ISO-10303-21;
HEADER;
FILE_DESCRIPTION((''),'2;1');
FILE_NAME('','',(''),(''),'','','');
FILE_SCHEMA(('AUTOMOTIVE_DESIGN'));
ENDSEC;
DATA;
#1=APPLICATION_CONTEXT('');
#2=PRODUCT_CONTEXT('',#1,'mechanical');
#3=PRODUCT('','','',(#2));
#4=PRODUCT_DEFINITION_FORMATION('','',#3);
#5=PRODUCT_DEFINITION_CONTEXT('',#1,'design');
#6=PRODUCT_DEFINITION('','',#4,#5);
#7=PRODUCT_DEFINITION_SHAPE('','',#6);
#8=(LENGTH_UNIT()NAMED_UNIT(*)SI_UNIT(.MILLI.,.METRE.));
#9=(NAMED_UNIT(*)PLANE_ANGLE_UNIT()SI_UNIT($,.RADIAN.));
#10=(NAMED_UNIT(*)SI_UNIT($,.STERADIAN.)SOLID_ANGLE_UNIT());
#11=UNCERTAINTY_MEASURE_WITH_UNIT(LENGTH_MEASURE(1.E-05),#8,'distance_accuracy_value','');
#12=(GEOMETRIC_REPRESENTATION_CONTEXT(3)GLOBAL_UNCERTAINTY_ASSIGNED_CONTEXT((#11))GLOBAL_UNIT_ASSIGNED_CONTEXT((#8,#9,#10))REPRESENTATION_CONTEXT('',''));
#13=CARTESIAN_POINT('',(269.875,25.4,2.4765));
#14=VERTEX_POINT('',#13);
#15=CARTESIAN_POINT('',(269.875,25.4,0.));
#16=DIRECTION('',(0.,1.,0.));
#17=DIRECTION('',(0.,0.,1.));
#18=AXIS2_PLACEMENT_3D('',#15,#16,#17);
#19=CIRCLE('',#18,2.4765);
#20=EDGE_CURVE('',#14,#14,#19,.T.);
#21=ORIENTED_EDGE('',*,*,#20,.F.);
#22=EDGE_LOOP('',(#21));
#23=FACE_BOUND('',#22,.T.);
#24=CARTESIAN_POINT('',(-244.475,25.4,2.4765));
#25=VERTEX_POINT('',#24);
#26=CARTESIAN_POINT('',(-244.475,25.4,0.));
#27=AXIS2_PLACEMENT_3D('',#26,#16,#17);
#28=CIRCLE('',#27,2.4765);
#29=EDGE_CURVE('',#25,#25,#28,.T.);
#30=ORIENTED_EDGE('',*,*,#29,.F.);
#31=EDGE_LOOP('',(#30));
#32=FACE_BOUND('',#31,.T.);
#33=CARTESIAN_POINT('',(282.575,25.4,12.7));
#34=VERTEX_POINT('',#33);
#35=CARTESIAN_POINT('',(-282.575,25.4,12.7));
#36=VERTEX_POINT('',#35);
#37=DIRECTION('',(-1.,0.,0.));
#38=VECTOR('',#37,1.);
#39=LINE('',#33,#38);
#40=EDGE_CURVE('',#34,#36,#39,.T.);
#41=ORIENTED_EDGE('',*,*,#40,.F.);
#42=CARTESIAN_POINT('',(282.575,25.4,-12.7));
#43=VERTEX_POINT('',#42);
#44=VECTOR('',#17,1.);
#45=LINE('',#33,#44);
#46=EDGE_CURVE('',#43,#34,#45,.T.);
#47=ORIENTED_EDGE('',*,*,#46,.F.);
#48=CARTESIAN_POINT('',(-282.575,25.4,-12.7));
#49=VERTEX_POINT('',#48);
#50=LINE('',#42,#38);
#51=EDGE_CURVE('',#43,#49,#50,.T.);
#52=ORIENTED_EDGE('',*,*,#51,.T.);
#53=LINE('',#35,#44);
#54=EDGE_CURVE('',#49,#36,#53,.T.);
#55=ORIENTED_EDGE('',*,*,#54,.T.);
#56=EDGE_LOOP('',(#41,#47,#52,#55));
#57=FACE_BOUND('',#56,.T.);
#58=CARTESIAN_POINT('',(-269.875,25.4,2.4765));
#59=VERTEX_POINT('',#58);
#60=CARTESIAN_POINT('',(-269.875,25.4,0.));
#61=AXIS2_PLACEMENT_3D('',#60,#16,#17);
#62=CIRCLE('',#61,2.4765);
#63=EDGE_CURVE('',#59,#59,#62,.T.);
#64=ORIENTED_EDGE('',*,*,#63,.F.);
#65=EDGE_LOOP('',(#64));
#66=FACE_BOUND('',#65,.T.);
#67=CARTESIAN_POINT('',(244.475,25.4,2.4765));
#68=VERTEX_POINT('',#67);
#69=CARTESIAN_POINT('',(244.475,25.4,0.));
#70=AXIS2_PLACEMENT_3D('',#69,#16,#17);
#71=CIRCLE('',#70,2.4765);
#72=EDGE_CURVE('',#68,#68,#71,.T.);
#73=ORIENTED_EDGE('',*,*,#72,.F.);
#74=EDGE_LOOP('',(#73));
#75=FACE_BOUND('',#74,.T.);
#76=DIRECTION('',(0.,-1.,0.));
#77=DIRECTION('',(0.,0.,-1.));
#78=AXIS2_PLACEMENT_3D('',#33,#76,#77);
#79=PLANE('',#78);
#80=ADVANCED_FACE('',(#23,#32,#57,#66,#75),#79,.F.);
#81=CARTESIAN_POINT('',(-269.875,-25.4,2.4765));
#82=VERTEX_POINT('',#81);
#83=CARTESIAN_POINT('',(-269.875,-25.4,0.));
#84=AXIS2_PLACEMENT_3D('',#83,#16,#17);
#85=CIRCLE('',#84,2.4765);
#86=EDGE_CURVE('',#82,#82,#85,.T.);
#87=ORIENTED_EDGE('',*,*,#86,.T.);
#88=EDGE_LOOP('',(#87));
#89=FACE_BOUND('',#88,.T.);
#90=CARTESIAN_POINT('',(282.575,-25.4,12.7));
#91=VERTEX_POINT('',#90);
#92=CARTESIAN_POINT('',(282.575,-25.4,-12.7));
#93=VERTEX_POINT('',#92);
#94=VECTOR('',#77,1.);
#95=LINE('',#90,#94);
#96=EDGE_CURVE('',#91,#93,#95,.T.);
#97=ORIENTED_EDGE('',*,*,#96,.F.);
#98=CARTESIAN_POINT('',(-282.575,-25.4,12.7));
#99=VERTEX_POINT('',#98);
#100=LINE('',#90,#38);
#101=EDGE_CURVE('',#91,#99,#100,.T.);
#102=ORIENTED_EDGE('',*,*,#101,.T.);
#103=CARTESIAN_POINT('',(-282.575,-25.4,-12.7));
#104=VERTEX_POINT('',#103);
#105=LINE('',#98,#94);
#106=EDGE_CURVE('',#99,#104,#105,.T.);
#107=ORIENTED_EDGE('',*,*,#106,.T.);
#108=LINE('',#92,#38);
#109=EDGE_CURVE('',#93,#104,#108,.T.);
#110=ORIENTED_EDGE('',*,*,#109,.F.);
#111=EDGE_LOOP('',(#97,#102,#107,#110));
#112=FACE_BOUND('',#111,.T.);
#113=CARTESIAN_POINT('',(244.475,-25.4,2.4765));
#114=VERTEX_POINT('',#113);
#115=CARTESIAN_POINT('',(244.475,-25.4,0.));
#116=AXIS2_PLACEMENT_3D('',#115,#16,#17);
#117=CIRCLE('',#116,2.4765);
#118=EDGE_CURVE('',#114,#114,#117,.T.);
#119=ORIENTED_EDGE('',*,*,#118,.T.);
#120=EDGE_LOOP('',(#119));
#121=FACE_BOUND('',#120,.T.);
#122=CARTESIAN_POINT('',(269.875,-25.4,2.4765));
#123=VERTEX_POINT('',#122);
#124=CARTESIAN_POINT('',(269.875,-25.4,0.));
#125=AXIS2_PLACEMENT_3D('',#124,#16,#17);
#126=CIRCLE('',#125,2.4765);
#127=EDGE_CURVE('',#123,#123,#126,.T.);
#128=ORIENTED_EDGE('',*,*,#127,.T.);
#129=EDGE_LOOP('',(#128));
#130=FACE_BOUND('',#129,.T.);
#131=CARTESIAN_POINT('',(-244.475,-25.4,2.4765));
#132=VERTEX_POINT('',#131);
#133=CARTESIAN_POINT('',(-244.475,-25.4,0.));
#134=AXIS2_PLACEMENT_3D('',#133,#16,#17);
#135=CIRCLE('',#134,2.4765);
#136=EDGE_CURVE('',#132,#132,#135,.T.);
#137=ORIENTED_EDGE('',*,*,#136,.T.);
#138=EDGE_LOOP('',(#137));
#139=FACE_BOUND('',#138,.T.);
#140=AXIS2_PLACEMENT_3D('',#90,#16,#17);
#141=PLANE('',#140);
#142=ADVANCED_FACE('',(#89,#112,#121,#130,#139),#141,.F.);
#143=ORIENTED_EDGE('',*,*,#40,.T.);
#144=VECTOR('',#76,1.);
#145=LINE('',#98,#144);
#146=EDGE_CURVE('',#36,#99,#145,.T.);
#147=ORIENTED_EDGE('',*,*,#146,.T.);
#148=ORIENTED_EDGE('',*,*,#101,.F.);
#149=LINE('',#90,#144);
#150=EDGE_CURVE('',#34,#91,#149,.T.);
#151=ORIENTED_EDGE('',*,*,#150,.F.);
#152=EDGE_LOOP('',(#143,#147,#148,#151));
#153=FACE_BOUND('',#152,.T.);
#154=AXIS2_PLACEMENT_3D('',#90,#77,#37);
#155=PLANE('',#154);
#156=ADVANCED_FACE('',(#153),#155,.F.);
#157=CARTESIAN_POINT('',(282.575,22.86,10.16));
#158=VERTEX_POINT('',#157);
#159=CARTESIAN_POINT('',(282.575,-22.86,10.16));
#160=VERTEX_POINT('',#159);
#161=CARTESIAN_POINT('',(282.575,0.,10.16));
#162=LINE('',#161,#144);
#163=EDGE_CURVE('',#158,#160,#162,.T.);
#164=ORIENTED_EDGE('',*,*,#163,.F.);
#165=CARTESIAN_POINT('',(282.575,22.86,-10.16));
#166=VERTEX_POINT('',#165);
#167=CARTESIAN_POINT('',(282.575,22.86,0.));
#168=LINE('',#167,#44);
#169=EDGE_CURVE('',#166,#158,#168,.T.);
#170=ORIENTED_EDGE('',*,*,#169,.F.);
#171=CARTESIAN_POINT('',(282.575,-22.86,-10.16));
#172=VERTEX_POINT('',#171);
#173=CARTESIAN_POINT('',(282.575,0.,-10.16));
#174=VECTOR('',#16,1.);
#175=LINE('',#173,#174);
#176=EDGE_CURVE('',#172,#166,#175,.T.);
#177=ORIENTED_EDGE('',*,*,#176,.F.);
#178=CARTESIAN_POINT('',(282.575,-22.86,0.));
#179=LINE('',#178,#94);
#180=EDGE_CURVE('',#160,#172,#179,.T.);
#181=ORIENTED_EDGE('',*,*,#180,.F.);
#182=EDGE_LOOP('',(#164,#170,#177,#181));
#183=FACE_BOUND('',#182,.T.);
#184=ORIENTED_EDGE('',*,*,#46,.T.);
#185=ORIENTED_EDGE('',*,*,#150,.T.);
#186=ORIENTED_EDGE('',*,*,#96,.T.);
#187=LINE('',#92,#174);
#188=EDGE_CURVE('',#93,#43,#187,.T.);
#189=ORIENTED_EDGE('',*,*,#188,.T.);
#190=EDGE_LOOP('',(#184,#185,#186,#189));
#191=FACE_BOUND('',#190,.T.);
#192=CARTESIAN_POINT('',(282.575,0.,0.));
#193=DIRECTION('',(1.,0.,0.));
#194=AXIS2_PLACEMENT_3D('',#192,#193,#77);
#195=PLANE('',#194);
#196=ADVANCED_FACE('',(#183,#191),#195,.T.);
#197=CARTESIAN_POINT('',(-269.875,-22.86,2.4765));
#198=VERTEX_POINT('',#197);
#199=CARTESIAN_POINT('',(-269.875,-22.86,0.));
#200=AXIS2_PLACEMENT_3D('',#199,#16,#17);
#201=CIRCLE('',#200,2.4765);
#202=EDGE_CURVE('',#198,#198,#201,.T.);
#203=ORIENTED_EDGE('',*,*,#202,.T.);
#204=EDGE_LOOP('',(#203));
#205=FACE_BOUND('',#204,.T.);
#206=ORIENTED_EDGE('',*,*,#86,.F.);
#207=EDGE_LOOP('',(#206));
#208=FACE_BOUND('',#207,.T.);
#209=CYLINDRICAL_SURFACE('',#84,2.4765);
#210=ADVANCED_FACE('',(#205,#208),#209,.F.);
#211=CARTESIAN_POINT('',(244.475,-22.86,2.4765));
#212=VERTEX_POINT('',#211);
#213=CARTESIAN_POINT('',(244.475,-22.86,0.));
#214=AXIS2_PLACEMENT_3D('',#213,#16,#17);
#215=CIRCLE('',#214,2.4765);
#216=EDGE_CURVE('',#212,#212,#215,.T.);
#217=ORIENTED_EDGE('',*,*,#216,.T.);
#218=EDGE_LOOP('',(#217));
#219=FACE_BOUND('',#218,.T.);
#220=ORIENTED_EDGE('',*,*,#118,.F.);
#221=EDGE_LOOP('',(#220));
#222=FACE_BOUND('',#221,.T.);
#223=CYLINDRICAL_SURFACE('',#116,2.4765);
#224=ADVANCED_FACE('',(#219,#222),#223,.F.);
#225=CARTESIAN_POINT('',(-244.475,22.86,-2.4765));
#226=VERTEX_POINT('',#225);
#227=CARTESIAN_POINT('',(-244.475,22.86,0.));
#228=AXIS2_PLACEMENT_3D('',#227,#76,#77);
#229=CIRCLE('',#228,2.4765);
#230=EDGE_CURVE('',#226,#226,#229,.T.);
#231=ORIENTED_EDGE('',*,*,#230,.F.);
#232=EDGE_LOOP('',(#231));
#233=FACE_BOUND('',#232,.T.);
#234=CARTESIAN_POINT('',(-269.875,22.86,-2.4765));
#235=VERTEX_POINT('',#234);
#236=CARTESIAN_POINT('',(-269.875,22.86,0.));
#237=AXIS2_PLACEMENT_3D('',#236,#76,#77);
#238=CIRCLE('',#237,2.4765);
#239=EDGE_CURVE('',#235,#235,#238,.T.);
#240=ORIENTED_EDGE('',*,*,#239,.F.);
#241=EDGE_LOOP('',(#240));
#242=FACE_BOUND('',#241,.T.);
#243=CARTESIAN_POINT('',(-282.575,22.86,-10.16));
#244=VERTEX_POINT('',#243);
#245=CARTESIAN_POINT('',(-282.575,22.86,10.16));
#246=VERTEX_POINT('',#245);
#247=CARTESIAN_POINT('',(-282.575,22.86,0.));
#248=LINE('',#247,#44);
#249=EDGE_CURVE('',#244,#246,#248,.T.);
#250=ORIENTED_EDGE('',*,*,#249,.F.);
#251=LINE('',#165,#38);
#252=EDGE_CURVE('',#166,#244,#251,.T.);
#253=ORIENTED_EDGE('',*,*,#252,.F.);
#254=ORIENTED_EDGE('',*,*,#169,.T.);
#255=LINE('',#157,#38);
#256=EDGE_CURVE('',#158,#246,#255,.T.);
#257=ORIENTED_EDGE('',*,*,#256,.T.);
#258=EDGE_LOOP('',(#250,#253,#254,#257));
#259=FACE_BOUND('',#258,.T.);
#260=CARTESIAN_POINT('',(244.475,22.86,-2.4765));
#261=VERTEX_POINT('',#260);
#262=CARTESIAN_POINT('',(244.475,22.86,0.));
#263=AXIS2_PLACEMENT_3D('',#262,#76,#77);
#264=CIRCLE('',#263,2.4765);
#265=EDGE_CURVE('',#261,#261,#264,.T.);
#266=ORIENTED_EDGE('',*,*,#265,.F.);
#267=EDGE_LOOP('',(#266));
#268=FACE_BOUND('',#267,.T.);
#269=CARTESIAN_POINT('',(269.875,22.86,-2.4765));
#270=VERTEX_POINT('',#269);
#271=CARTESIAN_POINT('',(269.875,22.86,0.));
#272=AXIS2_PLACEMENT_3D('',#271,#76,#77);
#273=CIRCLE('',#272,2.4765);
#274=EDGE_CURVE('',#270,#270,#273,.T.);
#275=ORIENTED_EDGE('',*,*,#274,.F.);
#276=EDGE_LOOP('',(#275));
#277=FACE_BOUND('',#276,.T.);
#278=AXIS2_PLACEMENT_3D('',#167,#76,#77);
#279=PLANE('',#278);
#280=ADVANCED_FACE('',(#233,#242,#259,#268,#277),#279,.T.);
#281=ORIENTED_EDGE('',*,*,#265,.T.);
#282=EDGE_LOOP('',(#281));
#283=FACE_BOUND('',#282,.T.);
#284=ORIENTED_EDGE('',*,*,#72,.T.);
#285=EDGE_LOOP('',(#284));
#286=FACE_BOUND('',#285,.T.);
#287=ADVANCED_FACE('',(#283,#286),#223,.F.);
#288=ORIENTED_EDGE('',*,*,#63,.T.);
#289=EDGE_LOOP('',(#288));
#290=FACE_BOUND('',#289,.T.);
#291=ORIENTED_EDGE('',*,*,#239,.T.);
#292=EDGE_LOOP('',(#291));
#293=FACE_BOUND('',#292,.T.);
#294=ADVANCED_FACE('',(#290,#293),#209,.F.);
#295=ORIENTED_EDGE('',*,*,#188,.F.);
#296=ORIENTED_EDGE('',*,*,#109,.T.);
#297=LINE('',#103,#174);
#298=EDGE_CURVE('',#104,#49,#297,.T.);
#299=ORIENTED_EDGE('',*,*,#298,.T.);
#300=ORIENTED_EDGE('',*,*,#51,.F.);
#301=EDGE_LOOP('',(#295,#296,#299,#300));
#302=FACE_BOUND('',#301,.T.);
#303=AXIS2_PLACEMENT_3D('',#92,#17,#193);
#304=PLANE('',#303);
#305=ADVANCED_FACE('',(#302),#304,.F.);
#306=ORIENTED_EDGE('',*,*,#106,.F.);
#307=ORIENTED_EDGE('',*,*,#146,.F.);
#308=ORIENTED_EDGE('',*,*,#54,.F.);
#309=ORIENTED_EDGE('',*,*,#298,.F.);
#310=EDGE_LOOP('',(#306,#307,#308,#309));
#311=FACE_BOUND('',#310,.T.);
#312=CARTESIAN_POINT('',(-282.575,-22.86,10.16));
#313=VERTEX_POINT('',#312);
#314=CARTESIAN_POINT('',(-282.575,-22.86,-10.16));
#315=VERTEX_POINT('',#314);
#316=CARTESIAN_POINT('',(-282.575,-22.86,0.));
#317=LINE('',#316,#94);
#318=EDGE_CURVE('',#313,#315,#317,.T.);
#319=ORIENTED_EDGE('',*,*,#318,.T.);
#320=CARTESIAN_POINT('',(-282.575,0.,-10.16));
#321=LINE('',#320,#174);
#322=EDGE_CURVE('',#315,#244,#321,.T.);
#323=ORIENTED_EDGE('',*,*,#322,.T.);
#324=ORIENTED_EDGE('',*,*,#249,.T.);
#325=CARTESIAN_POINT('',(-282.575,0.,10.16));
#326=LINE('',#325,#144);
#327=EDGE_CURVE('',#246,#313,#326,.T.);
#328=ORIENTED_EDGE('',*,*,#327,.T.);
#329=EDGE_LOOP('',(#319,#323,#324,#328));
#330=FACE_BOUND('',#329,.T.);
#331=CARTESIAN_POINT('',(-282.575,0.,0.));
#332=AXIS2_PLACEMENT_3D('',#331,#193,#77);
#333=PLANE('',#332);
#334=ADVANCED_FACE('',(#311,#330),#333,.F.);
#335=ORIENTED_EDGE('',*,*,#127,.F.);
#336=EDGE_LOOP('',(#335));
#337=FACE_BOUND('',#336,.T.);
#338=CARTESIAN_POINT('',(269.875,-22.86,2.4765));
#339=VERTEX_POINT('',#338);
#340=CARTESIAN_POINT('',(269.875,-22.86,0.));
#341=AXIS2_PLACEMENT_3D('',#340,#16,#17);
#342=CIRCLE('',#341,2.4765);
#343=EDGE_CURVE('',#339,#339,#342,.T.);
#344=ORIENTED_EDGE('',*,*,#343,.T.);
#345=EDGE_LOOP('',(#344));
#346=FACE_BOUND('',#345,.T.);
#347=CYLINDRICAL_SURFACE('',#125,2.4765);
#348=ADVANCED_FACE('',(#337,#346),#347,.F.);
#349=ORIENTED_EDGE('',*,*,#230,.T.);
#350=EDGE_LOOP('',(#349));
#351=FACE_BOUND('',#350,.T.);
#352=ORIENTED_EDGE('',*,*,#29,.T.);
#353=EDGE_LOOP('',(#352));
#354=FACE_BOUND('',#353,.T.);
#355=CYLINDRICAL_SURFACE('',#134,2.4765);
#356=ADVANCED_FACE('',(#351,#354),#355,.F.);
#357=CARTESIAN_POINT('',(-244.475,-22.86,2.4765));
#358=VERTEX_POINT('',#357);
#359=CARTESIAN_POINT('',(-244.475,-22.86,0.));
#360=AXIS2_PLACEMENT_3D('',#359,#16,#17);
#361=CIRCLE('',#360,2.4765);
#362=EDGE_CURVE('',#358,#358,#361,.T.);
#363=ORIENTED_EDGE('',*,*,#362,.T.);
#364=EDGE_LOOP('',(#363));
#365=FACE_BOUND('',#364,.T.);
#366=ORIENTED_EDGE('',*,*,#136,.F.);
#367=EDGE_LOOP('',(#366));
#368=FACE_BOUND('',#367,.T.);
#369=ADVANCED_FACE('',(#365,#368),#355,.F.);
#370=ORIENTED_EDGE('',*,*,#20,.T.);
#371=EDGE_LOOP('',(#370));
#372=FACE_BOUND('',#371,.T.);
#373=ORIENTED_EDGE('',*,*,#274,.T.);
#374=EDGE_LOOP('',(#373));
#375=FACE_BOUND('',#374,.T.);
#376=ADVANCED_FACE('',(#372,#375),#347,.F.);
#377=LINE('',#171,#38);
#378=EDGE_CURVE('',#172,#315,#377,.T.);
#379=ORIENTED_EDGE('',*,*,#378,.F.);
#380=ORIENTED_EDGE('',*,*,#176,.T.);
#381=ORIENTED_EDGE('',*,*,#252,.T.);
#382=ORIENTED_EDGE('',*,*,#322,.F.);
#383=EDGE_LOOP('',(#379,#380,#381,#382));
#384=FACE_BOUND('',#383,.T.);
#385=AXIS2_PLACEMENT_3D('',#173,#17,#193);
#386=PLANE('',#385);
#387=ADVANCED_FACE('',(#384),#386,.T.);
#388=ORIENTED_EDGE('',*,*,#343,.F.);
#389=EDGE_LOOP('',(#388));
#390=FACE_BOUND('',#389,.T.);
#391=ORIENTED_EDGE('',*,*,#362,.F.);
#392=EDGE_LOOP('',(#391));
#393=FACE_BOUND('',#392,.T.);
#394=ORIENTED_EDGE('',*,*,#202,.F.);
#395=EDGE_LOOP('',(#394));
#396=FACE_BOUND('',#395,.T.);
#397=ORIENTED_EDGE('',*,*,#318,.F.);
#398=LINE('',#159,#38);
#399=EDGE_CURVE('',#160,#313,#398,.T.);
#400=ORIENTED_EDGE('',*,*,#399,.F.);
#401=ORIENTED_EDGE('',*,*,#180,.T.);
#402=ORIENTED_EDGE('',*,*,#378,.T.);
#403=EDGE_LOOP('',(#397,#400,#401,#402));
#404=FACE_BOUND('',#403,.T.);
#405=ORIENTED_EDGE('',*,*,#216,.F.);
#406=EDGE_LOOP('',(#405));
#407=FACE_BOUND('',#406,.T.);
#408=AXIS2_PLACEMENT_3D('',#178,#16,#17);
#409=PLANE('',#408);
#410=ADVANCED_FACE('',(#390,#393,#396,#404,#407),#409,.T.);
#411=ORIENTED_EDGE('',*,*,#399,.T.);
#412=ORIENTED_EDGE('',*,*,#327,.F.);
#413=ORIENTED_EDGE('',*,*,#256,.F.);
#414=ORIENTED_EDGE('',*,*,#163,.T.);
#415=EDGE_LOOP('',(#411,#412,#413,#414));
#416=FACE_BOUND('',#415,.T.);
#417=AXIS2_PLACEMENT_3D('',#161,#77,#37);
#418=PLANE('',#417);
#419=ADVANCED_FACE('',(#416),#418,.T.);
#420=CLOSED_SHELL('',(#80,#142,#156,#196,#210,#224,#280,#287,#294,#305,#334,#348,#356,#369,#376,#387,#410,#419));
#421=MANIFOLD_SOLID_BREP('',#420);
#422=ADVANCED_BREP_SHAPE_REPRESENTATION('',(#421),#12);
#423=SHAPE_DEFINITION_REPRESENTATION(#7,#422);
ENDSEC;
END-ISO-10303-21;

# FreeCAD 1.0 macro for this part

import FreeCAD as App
import Part
import Sketcher
Q = App.Units.Quantity


def add_polygon(sketch, points):
    """Adds a closed chain of lines whose ends are joined by coincident constraints."""
    first, n = sketch.GeometryCount, len(points)
    for a, b in zip(points, points[1:] + points[:1]):
        sketch.addGeometry(Part.LineSegment(App.Vector(*a, 0), App.Vector(*b, 0)), False)
    for i in range(n):
        sketch.addConstraint(Sketcher.Constraint("Coincident", first + i, 2, first + (i + 1) % n, 1))

doc = App.newDocument("Part")
params = doc.addObject("Spreadsheet::Sheet", "Params")
for row, (alias, value) in enumerate([
    ("sketch1_width", "2 in"),
    ("sketch1_height", "1 in"),
    ("sketch1_width2", "1.8 in"),
    ("sketch1_height2", "0.8 in"),
    ("pad1_length", "22.25 in"),
    ("sketch2_diameter", "0.195 in"),
], start=1):
    params.set(f"A{row}", alias)
    params.set(f"B{row}", "=" + value)
    params.setAlias(f"B{row}", alias)

body = doc.addObject("PartDesign::Body", "Body")

# Sketch on YZ plane
sketch1 = doc.addObject("Sketcher::SketchObject", "Sketch")
body.addObject(sketch1)
sketch1.AttachmentSupport = (doc.YZ_Plane, [""])
sketch1.MapMode = "FlatFace"
add_polygon(sketch1, [(25.4, 12.7), (-25.4, 12.7), (-25.4, -12.7), (25.4, -12.7)])  # lines 0-3
add_polygon(sketch1, [(-22.86, -10.16), (-22.86, 10.16), (22.86, 10.16), (22.86, -10.16)])  # lines 4-7
sketch1.addConstraint([
    Sketcher.Constraint("Horizontal", 0),
    Sketcher.Constraint("Vertical", 1),
    Sketcher.Constraint("Horizontal", 2),
    Sketcher.Constraint("Vertical", 3),
    Sketcher.Constraint("Vertical", 4),
    Sketcher.Constraint("Horizontal", 5),
    Sketcher.Constraint("Vertical", 6),
    Sketcher.Constraint("Horizontal", 7),
    Sketcher.Constraint("Symmetric", 0, 2, 2, 2, -1, 1),
    Sketcher.Constraint("Symmetric", 4, 2, 6, 2, -1, 1),
    Sketcher.Constraint("DistanceX", 0, 2, 0, 1, Q("2 in")),
    Sketcher.Constraint("DistanceY", 1, 2, 1, 1, Q("1 in")),
    Sketcher.Constraint("DistanceX", 5, 1, 5, 2, Q("1.8 in")),
    Sketcher.Constraint("DistanceY", 4, 1, 4, 2, Q("0.8 in")),
])
sketch1.setExpression("Constraints[18]", "Params.sketch1_width")
sketch1.setExpression("Constraints[19]", "Params.sketch1_height")
sketch1.setExpression("Constraints[20]", "Params.sketch1_width2")
sketch1.setExpression("Constraints[21]", "Params.sketch1_height2")
pad1 = doc.addObject("PartDesign::Pad", "Pad")
body.addObject(pad1)
pad1.Profile = sketch1
pad1.setExpression("Length", "Params.pad1_length")
pad1.Midplane = True

# Sketch on XZ plane
sketch2 = doc.addObject("Sketcher::SketchObject", "Sketch001")
body.addObject(sketch2)
sketch2.AttachmentSupport = (doc.XZ_Plane, [""])
sketch2.MapMode = "FlatFace"
sketch2.AttachmentOffset = App.Placement(App.Vector(0, 0, -1 * 25.4), App.Rotation())
sketch2.addGeometry([
    Part.Circle(App.Vector(-269.875, 0, 0), App.Vector(0, 0, 1), 2.4765),
    Part.Circle(App.Vector(-244.475, 0, 0), App.Vector(0, 0, 1), 2.4765),
    Part.Circle(App.Vector(269.875, 0, 0), App.Vector(0, 0, 1), 2.4765),
    Part.Circle(App.Vector(244.475, 0, 0), App.Vector(0, 0, 1), 2.4765),
], False)
sketch2.addConstraint([
    Sketcher.Constraint("Equal", 0, 1),
    Sketcher.Constraint("Equal", 1, 2),
    Sketcher.Constraint("Equal", 2, 3),
    Sketcher.Constraint("Symmetric", 0, 3, 2, 3, -1, 1),
    Sketcher.Constraint("Symmetric", 1, 3, 3, 3, -1, 1),
    Sketcher.Constraint("PointOnObject", 0, 3, -1),
    Sketcher.Constraint("PointOnObject", 1, 3, -1),
    Sketcher.Constraint("Diameter", 0, Q("0.195 in")),
    Sketcher.Constraint("DistanceX", 0, 3, 1, 3, Q("1 in")),
    Sketcher.Constraint("DistanceX", 1, 3, 2, 3, Q("20.25 in")),
])
sketch2.setExpression("Constraints[7]", "Params.sketch2_diameter")
pocket1 = doc.addObject("PartDesign::Pocket", "Pocket")
body.addObject(pocket1)
pocket1.Profile = sketch2
pocket1.Type = "ThroughAll"
pocket1.Reversed = True

doc.recompute()
